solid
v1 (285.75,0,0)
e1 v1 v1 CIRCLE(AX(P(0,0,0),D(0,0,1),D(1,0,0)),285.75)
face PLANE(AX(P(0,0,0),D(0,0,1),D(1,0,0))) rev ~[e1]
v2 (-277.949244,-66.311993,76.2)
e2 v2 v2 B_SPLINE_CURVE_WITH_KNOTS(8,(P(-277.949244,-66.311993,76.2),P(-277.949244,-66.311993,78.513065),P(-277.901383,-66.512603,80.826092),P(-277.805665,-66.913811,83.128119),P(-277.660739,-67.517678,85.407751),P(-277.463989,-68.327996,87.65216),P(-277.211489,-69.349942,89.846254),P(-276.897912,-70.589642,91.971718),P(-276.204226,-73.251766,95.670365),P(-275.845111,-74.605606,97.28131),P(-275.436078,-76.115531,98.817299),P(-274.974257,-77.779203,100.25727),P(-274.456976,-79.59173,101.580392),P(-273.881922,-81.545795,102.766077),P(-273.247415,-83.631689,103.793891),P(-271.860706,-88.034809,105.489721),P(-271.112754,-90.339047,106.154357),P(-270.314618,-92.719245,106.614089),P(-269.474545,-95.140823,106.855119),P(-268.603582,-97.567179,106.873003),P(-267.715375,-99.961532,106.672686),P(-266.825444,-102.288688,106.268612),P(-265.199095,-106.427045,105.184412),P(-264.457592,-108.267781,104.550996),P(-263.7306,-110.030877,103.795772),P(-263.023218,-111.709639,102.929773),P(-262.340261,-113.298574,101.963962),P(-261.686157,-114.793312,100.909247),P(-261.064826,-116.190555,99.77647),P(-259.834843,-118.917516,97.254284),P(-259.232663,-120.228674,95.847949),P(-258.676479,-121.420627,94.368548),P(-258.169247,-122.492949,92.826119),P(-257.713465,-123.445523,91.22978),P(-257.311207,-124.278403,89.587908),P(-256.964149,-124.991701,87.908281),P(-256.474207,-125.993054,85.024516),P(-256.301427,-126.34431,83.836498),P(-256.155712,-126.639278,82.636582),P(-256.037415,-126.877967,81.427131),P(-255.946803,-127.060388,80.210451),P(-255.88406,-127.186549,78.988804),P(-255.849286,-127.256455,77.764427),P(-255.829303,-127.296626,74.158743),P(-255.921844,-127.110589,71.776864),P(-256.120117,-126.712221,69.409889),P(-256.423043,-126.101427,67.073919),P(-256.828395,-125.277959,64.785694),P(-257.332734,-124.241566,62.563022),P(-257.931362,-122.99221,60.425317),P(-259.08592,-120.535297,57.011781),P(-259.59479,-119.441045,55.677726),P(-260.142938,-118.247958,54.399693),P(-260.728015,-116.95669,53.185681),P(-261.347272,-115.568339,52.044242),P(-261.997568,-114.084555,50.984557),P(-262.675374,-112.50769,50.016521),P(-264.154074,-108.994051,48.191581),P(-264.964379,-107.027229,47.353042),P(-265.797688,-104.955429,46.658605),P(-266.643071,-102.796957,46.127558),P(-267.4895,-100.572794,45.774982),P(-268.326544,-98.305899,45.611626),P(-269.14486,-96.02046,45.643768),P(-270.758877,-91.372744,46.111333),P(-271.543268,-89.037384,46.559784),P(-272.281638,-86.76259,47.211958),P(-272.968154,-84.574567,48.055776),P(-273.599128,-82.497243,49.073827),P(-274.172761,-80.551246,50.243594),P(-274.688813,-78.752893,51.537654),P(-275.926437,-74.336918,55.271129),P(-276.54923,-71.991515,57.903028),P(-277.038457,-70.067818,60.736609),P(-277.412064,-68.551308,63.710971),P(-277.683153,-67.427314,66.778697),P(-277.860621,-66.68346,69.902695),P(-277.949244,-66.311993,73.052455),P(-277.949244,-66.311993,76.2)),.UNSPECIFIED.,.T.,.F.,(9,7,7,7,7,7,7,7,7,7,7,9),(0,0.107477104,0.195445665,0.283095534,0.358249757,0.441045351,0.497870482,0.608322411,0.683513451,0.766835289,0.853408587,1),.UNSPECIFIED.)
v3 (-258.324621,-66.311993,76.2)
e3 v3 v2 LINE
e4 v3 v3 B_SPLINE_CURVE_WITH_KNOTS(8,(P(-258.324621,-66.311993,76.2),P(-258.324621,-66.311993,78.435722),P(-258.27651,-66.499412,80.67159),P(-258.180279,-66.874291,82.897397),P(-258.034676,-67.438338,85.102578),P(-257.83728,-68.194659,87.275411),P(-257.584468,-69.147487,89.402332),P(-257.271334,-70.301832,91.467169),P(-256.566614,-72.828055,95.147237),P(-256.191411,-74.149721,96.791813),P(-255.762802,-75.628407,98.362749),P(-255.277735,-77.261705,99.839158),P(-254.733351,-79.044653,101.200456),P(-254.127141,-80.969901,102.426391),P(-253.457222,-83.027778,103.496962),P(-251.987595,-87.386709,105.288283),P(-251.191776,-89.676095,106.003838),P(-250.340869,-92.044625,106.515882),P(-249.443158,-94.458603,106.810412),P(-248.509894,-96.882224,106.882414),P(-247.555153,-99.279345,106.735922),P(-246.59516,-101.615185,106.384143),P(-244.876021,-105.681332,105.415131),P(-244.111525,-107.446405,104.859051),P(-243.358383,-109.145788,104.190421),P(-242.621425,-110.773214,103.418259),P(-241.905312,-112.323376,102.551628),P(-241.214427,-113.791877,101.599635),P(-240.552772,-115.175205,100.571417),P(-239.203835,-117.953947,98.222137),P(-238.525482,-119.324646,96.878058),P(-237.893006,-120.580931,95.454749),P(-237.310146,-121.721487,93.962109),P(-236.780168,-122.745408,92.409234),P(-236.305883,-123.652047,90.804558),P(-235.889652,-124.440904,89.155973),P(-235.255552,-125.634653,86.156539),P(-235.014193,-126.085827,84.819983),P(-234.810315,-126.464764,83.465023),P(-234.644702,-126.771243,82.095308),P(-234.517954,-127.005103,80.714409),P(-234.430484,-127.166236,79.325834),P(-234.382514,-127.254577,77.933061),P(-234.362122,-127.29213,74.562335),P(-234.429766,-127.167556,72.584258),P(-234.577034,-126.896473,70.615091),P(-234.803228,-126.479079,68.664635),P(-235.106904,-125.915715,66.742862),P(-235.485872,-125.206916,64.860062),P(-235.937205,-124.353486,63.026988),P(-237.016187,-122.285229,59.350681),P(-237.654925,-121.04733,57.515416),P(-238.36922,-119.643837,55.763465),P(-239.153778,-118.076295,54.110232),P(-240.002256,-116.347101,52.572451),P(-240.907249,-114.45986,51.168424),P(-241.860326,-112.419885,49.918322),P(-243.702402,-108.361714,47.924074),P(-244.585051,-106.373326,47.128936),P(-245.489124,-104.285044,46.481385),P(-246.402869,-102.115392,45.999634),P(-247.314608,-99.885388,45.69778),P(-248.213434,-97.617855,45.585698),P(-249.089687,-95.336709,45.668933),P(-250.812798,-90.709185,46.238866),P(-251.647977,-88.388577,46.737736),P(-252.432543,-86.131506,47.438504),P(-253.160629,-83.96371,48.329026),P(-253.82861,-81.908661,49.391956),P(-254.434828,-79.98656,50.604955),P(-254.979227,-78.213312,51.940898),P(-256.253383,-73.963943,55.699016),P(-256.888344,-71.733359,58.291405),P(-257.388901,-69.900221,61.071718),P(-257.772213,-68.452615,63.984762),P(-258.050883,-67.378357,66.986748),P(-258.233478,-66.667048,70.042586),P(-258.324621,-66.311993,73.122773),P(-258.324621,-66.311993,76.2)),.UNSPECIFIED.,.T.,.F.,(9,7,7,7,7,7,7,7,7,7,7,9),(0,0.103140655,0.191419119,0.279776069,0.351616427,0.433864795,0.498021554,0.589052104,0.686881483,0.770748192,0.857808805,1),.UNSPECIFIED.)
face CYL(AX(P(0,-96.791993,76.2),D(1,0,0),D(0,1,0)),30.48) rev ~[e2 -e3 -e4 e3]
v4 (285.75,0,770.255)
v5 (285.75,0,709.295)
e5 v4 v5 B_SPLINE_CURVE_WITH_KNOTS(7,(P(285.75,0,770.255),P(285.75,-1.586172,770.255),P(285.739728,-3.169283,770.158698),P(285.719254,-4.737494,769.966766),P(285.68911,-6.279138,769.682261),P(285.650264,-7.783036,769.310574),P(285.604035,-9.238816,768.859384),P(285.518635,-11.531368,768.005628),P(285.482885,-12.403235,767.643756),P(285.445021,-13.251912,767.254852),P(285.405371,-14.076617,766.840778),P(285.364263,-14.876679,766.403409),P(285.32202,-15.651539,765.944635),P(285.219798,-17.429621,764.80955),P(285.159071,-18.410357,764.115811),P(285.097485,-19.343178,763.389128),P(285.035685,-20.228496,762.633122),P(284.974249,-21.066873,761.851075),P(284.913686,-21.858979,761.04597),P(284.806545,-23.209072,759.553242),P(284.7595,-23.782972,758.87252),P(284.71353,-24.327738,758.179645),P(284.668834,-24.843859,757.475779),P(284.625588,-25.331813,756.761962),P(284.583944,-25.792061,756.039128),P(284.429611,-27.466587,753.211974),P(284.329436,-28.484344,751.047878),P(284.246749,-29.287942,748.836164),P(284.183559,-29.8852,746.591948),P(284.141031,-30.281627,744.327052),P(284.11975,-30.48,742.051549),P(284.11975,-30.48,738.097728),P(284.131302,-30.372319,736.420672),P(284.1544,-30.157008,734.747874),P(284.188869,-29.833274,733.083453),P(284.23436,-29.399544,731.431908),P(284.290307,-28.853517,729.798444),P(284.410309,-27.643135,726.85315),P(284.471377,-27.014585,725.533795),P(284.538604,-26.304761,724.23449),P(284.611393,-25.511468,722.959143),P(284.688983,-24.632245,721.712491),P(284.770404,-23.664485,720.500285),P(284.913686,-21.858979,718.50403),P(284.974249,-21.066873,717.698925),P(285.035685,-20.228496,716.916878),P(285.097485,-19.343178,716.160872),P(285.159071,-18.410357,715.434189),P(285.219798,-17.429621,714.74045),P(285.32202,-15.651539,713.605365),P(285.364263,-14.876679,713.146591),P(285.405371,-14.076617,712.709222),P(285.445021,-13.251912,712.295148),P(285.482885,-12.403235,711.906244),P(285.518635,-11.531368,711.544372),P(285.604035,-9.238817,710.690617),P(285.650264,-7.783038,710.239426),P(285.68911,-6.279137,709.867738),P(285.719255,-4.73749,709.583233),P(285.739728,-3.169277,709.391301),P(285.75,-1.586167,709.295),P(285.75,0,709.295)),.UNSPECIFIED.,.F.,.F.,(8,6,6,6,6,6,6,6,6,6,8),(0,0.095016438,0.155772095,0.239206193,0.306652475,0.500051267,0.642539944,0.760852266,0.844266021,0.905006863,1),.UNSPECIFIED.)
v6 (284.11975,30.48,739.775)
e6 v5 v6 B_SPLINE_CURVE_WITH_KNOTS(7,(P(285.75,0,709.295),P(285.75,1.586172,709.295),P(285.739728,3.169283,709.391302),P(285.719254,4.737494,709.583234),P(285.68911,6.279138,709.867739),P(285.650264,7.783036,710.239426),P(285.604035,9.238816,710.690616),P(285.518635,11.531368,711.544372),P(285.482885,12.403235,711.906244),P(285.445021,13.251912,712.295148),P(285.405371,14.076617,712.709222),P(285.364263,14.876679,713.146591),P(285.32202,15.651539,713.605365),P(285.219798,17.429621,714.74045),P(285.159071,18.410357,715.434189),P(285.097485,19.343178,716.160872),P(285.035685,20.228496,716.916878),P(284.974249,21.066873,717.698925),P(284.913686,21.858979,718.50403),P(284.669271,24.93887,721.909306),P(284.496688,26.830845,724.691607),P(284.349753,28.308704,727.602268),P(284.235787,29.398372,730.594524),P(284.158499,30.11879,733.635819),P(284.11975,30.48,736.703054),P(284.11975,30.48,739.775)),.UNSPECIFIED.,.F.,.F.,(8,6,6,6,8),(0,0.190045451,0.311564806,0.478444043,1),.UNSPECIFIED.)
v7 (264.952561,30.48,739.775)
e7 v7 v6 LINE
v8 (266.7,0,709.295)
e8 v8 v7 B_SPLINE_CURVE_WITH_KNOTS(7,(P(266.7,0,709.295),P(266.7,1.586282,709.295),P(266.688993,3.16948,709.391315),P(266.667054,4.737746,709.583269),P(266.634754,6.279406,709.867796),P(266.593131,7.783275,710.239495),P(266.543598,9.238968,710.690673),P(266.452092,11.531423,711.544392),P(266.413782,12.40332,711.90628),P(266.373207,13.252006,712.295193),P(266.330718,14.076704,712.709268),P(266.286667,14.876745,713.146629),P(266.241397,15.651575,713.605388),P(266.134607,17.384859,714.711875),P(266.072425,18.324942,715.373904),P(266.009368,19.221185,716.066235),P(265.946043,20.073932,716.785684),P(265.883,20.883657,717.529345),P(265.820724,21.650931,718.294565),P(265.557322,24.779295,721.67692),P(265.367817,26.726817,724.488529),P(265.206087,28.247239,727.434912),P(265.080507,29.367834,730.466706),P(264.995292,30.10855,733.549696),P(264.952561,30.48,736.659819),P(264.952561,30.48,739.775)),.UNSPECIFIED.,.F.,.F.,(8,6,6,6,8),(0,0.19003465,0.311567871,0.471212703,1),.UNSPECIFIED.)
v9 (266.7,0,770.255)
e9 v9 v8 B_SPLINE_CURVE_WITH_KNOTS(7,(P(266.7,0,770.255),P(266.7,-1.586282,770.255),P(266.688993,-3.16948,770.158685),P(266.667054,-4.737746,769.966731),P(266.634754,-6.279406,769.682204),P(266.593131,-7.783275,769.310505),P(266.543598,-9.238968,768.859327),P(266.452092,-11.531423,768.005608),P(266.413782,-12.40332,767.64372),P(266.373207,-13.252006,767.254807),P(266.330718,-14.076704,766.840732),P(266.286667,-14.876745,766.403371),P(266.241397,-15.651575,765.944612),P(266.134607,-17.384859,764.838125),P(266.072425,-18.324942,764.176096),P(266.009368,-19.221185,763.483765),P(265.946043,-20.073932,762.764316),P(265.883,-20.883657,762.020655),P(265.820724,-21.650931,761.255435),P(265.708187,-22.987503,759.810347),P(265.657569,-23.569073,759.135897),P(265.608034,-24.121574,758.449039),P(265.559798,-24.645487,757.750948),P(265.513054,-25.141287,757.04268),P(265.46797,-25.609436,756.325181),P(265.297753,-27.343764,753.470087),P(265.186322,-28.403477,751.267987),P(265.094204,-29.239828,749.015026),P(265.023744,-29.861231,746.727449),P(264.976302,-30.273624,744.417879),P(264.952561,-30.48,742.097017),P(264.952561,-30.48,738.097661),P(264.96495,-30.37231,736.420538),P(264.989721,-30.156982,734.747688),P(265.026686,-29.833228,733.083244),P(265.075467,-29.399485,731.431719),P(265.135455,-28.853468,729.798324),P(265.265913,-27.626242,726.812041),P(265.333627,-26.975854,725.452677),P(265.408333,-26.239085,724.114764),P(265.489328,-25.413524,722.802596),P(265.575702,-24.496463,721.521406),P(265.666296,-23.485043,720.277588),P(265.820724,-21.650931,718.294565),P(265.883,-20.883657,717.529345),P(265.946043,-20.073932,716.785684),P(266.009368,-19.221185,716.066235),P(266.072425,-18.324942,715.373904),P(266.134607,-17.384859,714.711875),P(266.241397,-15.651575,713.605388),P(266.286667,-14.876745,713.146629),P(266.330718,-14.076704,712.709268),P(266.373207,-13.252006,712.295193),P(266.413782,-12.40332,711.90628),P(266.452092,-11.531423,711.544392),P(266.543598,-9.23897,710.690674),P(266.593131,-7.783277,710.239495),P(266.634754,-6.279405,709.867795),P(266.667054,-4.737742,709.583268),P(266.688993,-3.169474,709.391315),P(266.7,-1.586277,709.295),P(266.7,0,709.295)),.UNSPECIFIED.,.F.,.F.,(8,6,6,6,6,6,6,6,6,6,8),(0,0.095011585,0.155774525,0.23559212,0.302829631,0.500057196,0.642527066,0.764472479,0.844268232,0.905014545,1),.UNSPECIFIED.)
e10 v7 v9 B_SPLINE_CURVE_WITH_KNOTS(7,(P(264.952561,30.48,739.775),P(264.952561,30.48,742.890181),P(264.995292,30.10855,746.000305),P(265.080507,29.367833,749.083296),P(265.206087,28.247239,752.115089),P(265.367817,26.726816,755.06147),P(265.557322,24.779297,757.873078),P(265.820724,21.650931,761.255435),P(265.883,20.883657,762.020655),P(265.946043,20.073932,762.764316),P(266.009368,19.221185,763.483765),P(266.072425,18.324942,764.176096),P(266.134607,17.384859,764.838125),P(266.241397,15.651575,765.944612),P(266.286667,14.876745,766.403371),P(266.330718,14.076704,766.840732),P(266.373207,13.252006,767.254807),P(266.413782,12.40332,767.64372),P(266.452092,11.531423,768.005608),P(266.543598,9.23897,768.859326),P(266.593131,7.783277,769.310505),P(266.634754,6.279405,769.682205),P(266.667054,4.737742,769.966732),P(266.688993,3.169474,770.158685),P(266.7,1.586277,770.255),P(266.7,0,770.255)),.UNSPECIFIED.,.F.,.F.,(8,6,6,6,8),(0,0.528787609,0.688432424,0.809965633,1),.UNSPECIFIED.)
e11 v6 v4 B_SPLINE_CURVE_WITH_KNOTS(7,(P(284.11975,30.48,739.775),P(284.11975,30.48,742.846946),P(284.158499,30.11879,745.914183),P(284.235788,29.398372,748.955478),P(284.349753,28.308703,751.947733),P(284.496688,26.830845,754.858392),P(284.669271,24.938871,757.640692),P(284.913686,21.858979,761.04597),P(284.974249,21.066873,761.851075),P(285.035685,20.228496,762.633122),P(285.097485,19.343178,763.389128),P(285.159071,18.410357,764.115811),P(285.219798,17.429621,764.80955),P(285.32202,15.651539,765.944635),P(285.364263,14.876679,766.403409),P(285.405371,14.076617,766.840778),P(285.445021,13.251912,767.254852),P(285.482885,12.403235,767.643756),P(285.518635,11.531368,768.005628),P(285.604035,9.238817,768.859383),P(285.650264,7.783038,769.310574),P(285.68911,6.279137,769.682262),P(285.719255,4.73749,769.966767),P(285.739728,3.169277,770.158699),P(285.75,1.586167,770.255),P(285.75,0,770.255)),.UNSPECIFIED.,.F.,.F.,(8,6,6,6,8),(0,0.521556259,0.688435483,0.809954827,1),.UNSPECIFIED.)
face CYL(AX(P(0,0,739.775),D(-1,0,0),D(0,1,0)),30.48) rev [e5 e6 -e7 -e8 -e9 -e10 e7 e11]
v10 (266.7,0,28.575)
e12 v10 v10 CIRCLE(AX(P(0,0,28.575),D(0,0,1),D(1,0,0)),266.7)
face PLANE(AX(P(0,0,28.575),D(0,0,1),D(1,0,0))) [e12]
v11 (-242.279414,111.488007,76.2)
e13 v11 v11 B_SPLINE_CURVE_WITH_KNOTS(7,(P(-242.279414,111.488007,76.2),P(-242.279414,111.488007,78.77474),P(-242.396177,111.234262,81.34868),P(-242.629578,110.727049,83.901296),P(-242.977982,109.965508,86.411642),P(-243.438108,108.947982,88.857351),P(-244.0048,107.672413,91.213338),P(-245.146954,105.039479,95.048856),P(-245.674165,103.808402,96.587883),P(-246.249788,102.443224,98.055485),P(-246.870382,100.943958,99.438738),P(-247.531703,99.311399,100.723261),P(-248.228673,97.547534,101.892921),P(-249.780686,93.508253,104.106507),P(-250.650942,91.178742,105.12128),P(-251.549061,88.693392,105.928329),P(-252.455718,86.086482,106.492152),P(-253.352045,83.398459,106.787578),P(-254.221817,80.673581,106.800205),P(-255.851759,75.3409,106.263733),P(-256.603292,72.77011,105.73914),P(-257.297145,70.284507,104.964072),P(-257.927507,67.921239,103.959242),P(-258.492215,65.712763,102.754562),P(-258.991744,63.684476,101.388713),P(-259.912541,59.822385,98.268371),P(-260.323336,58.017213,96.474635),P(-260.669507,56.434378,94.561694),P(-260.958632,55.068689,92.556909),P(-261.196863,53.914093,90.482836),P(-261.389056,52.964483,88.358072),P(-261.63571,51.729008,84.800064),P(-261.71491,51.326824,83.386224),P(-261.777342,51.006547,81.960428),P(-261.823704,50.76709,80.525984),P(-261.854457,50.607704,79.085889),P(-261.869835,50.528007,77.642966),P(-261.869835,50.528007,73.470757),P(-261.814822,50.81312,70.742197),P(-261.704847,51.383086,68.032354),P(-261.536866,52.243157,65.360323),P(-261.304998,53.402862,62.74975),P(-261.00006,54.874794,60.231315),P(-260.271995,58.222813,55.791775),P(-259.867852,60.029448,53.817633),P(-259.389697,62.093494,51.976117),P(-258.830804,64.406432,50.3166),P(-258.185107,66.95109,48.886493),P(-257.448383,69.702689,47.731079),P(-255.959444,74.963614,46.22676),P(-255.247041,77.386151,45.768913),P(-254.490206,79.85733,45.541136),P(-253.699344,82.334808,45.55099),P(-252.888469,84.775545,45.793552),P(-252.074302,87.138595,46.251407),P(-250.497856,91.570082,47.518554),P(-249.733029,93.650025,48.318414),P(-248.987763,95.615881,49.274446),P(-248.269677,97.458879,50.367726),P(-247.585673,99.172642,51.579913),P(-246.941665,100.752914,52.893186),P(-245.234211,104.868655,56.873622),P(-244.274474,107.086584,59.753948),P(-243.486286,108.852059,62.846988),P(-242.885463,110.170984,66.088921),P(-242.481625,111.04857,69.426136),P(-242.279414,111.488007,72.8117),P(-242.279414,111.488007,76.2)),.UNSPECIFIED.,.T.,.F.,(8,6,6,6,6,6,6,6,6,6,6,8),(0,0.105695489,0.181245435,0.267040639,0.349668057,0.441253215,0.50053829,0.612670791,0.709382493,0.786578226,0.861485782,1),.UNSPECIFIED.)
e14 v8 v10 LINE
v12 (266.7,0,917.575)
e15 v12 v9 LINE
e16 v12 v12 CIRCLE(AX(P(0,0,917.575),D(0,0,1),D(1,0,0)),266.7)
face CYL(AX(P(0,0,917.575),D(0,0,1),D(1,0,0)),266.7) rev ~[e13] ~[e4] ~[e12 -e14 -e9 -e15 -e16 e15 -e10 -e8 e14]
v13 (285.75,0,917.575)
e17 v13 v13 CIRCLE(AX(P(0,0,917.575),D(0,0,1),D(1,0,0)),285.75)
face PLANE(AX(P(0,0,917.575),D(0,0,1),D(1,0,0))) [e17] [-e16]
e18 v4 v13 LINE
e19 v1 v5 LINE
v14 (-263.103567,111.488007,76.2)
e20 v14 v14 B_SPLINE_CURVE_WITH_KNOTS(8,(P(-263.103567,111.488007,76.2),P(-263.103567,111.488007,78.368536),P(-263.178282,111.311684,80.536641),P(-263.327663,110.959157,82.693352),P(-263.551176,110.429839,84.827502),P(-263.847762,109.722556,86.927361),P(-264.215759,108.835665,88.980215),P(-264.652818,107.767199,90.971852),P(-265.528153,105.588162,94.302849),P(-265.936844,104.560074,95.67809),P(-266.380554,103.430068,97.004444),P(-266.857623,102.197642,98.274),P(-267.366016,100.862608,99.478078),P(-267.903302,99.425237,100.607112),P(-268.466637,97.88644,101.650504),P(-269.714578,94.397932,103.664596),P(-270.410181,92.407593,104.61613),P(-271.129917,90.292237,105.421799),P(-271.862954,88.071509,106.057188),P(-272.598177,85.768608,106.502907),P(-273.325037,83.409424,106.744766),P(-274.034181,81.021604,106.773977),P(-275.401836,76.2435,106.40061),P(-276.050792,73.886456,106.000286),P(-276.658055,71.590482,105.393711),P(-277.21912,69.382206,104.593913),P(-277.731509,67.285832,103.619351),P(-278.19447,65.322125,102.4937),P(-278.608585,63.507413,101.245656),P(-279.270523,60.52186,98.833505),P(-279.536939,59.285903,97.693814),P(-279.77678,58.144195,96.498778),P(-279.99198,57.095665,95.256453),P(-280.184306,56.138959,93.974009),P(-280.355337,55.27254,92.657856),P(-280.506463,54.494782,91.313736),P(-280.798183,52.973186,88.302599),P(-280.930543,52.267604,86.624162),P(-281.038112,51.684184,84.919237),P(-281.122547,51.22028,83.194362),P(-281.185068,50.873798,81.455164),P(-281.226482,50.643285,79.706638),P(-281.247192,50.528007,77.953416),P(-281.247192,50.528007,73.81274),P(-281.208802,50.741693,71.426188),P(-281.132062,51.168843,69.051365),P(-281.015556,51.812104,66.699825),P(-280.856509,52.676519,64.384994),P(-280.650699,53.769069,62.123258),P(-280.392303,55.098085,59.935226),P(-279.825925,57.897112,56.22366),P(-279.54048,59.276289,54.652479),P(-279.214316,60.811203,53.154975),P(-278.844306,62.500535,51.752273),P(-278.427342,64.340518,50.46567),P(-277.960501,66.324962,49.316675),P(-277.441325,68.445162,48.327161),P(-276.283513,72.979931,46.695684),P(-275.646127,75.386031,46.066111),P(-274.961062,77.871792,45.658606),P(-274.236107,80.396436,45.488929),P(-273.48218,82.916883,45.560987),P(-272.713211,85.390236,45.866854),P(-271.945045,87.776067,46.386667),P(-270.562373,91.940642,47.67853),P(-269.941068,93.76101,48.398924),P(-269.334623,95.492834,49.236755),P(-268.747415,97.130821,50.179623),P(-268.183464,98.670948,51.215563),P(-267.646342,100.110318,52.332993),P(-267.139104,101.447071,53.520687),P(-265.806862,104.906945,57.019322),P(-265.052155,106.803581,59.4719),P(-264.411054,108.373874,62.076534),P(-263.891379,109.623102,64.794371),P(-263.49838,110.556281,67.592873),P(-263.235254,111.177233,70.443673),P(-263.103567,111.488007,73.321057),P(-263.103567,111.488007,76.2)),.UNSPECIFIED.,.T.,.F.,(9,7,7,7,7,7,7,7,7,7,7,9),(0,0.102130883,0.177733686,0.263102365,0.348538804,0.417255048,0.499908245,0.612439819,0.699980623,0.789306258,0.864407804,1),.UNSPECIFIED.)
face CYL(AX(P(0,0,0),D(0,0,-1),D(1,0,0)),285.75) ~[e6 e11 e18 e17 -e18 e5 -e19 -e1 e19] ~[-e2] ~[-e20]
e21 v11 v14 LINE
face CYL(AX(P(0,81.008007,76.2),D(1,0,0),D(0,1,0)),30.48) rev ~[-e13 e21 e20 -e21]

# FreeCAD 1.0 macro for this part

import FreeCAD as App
import Part
import Sketcher

V = App.Vector
Q = App.Units.Quantity

doc = App.newDocument("Part")
body = doc.addObject("PartDesign::Body", "Body")

sketch1 = body.newObject("Sketcher::SketchObject", "Sketch")
sketch1.AttachmentSupport = (doc.getObject("XY_Plane"), [""])
sketch1.MapMode = "FlatFace"
sketch1.addGeometry(Part.Circle(V(0, 0, 0), V(0, 0, 1), 285.75), False)
sketch1.addConstraint([
    Sketcher.Constraint("Coincident", 0, 3, -1, 1),
    Sketcher.Constraint("Diameter", 0, Q("22.5 in")),
])
pad1 = body.newObject("PartDesign::Pad", "Pad")
pad1.Profile = sketch1
pad1.Length = Q("36.125 in")

sketch2 = body.newObject("Sketcher::SketchObject", "Sketch001")
sketch2.AttachmentSupport = (doc.getObject("XY_Plane"), [""])
sketch2.MapMode = "FlatFace"
sketch2.AttachmentOffset = App.Placement(V(0, 0, 36.125 * 25.4), App.Rotation())
sketch2.addGeometry(Part.Circle(V(0, 0, 0), V(0, 0, 1), 266.7), False)
sketch2.addConstraint([
    Sketcher.Constraint("Coincident", 0, 3, -1, 1),
    Sketcher.Constraint("Diameter", 0, Q("21 in")),
])
pocket1 = body.newObject("PartDesign::Pocket", "Pocket")
pocket1.Profile = sketch2
pocket1.Length = Q("35 in")

sketch3 = body.newObject("Sketcher::SketchObject", "Sketch002")
sketch3.AttachmentSupport = (doc.getObject("YZ_Plane"), [""])
sketch3.MapMode = "FlatFace"
sketch3.addGeometry(Part.Circle(V(0, 739.775, 0), V(0, 0, 1), 30.48), False)
sketch3.addConstraint([
    Sketcher.Constraint("PointOnObject", 0, 3, -2),
    Sketcher.Constraint("Diameter", 0, Q("2.4 in")),
    Sketcher.Constraint("DistanceY", -1, 1, 0, 3, Q("29.125 in")),
])
pocket2 = body.newObject("PartDesign::Pocket", "Pocket001")
pocket2.Profile = sketch3
pocket2.Length = 547.83055
pocket2.Reversed = True

sketch4 = body.newObject("Sketcher::SketchObject", "Sketch003")
sketch4.AttachmentSupport = (doc.getObject("YZ_Plane"), [""])
sketch4.MapMode = "FlatFace"
sketch4.addGeometry([
    Part.Circle(V(81.008007, 76.2, 0), V(0, 0, 1), 30.48),
    Part.Circle(V(-96.791993, 76.2, 0), V(0, 0, 1), 30.48),
], False)
sketch4.addConstraint([
    Sketcher.Constraint("Equal", 0, 1),
    Sketcher.Constraint("Horizontal", 0, 3, 1, 3),
    Sketcher.Constraint("Diameter", 0, Q("2.4 in")),
    Sketcher.Constraint("DistanceY", -1, 1, 0, 3, Q("3 in")),
    Sketcher.Constraint("DistanceX", 1, 3, 0, 3, Q("7 in")),
    Sketcher.Constraint("DistanceX", -1, 1, 0, 3, 81.008007),
])
pocket3 = body.newObject("PartDesign::Pocket", "Pocket002")
pocket3.Profile = sketch4
pocket3.Length = 651.82147

doc.recompute()
